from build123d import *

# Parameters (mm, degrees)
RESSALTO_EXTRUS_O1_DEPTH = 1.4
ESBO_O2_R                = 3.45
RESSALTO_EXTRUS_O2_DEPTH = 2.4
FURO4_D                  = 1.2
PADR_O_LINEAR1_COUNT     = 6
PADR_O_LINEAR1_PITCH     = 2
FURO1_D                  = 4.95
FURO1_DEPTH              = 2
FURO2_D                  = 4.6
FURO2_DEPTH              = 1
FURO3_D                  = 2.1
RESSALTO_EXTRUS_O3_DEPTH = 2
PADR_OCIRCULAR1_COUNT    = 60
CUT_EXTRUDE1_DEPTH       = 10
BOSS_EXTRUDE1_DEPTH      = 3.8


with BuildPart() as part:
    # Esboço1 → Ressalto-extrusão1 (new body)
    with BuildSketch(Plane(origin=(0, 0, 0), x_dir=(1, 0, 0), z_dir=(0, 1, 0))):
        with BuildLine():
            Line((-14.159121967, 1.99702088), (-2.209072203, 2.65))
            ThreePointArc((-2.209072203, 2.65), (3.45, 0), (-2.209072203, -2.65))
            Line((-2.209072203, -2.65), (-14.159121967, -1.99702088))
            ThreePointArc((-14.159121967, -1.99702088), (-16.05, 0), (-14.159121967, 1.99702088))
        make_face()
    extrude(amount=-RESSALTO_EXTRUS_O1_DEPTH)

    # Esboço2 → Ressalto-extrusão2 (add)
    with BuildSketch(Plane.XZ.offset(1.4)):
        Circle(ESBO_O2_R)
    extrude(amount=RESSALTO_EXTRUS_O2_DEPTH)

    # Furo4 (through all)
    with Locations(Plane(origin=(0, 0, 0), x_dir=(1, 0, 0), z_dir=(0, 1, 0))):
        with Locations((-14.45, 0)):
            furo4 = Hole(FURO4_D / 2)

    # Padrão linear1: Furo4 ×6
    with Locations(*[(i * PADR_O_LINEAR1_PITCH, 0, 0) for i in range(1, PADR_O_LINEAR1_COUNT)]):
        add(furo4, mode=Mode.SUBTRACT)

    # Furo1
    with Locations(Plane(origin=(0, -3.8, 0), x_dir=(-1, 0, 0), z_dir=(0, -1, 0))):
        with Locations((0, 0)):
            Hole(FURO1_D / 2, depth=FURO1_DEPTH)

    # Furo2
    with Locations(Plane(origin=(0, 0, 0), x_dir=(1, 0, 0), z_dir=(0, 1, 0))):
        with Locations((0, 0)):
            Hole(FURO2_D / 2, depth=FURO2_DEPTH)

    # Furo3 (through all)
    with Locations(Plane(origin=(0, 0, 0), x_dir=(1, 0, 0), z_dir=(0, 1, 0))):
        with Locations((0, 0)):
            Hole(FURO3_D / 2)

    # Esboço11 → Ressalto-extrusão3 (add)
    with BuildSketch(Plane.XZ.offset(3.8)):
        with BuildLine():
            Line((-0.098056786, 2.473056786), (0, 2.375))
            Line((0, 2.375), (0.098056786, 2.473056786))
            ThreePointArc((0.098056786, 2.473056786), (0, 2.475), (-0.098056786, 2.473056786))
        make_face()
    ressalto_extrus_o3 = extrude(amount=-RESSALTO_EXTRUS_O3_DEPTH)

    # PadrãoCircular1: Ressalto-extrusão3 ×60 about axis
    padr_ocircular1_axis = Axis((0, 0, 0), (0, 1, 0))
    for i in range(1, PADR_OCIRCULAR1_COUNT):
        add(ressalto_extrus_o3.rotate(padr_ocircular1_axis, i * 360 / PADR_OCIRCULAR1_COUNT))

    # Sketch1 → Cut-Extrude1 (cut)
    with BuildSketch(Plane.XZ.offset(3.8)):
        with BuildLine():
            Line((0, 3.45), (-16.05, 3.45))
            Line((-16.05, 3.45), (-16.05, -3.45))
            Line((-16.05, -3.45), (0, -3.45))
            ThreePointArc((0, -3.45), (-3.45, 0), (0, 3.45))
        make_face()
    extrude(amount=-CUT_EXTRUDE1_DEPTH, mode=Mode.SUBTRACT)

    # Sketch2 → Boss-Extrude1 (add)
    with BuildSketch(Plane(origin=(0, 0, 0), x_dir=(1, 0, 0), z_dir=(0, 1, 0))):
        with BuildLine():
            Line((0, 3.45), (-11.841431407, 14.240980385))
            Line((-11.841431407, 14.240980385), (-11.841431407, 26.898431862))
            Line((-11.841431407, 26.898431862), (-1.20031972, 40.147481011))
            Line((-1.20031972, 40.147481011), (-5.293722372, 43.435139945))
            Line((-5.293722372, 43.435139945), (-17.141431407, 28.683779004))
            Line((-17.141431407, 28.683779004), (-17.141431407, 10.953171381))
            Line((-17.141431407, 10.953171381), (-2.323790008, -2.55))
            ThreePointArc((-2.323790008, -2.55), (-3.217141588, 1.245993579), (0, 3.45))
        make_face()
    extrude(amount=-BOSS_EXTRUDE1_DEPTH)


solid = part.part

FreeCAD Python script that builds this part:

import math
import FreeCAD as App
import Part
import Sketcher

doc = App.newDocument("Part")
params = doc.addObject("Spreadsheet::Sheet", "Params")
for row, (alias, value) in enumerate([
    ("sketch1_radius", "2 mm"),
    ("sketch1_radius2", "3.45 mm"),
    ("pad1_length", "1.4 mm"),
    ("sketch2_diameter", "6.9 mm"),
    ("pad2_length", "2.4 mm"),
    ("sketch3_diameter", "1.2 mm"),
    ("hole_diameter", "1.2 mm"),
    ("linearpattern_pitch", "2 mm"),
    ("sketch4_diameter", "4.95 mm"),
    ("hole2_diameter", "4.95 mm"),
    ("hole2_depth", "2 mm"),
    ("sketch5_diameter", "4.6 mm"),
    ("hole3_diameter", "4.6 mm"),
    ("hole3_depth", "1 mm"),
    ("sketch6_diameter", "2.1 mm"),
    ("hole4_diameter", "2.1 mm"),
    ("pad3_length", "2 mm"),
    ("sketch8_radius", "3.45 mm"),
    ("sketch8_width", "16.05 mm"),
    ("pocket1_length", "10 mm"),
    ("sketch9_radius", "3.45 mm"),
    ("pad4_length", "3.8 mm"),
], start=1):
    params.set(f"A{row}", alias)
    params.set(f"B{row}", "=" + value)
    params.setAlias(f"B{row}", alias)

body = doc.addObject("PartDesign::Body", "Body")

sketch1 = body.newObject("Sketcher::SketchObject", "Sketch")
sketch1.AttachmentSupport = (doc.getObject("XZ_Plane"), [""])
sketch1.MapMode = "FlatFace"
sketch1.addGeometry([
    Part.LineSegment(App.Vector(-2.2, -2.6, 0), App.Vector(-14.2, -2, 0)),
    Part.ArcOfCircle(Part.Circle(App.Vector(-14.1, 0, 0), App.Vector(0, 0, 1), 2), math.radians(93), math.radians(267)),
    Part.LineSegment(App.Vector(-14.2, 2, 0), App.Vector(-2.2, 2.6, 0)),
    Part.ArcOfCircle(Part.Circle(App.Vector(0, 0, 0), App.Vector(0, 0, 1), 3.5), math.radians(-130), math.radians(130)),
], False)
sketch1.addConstraint([
    Sketcher.Constraint("Tangent", 0, 2, 1, 2),
    Sketcher.Constraint("Tangent", 1, 1, 2, 1),
    Sketcher.Constraint("Coincident", 2, 2, 3, 2),
    Sketcher.Constraint("Coincident", 3, 1, 0, 1),
    Sketcher.Constraint("Coincident", 3, 3, -1, 1),
    Sketcher.Constraint("Symmetric", 0, 2, 1, 1, -1),
    Sketcher.Constraint("Radius", 1, 2.0),
    Sketcher.Constraint("Radius", 3, 3.45),
    Sketcher.Constraint("DistanceY", 3, 1, 2, 2, 5.3),
    Sketcher.Constraint("DistanceX", 1, 3, -1, 1, 14.05),
])
sketch1.setExpression("Constraints[6]", "Params.sketch1_radius")
sketch1.setExpression("Constraints[7]", "Params.sketch1_radius2")
pad1 = body.newObject("PartDesign::Pad", "Pad")
pad1.Profile = sketch1
pad1.setExpression("Length", "Params.pad1_length")

sketch2 = body.newObject("Sketcher::SketchObject", "Sketch001")
sketch2.AttachmentSupport = (doc.getObject("XZ_Plane"), [""])
sketch2.MapMode = "FlatFace"
sketch2.AttachmentOffset = App.Placement(App.Vector(0, 0, 1.4), App.Rotation())
sketch2.addGeometry(Part.Circle(App.Vector(0, 0, 0), App.Vector(0, 0, 1), 3.5), False)
sketch2.addConstraint([
    Sketcher.Constraint("Coincident", 0, 3, -1, 1),
    Sketcher.Constraint("Diameter", 0, 6.9),
])
sketch2.setExpression("Constraints[1]", "Params.sketch2_diameter")
pad2 = body.newObject("PartDesign::Pad", "Pad001")
pad2.Profile = sketch2
pad2.setExpression("Length", "Params.pad2_length")

sketch3 = body.newObject("Sketcher::SketchObject", "Sketch002")
sketch3.AttachmentSupport = (doc.getObject("XZ_Plane"), [""])
sketch3.MapMode = "FlatFace"
sketch3.addGeometry(Part.Circle(App.Vector(-14.4, 0, 0), App.Vector(0, 0, 1), 0.6), False)
sketch3.addConstraint([
    Sketcher.Constraint("PointOnObject", 0, 3, -1),
    Sketcher.Constraint("Diameter", 0, 1.2),
    Sketcher.Constraint("DistanceX", 0, 3, -1, 1, 14.45),
])
sketch3.setExpression("Constraints[1]", "Params.sketch3_diameter")
doc.recompute()
hole = body.newObject("PartDesign::Hole", "Hole")
hole.Profile = sketch3
hole.ThreadType = "None"
hole.setExpression("Diameter", "Params.hole_diameter")
hole.DepthType = "ThroughAll"
hole.Reversed = True
doc.recompute()

linearpattern = body.newObject("PartDesign::LinearPattern", "LinearPattern")
linearpattern.Originals = [hole]
linearpattern.Direction = (doc.getObject("X_Axis"), [""])
linearpattern.Mode = "offset"
linearpattern.setExpression("Offset", "Params.linearpattern_pitch")
linearpattern.Occurrences = 6
body.Tip = linearpattern

sketch4 = body.newObject("Sketcher::SketchObject", "Sketch003")
sketch4.AttachmentSupport = (doc.getObject("XZ_Plane"), [""])
sketch4.MapMode = "FlatFace"
sketch4.AttachmentOffset = App.Placement(App.Vector(0, 0, 3.8), App.Rotation())
sketch4.addGeometry(Part.Circle(App.Vector(0, 0, 0), App.Vector(0, 0, 1), 2.5), False)
sketch4.addConstraint([
    Sketcher.Constraint("Coincident", 0, 3, -1, 1),
    Sketcher.Constraint("Diameter", 0, 4.95),
])
sketch4.setExpression("Constraints[1]", "Params.sketch4_diameter")
doc.recompute()
hole2 = body.newObject("PartDesign::Hole", "Hole001")
hole2.Profile = sketch4
hole2.ThreadType = "None"
hole2.setExpression("Diameter", "Params.hole2_diameter")
hole2.DepthType = "Dimension"
hole2.setExpression("Depth", "Params.hole2_depth")
hole2.DrillPoint = "Flat"

sketch5 = body.newObject("Sketcher::SketchObject", "Sketch004")
sketch5.AttachmentSupport = (doc.getObject("XZ_Plane"), [""])
sketch5.MapMode = "FlatFace"
sketch5.addGeometry(Part.Circle(App.Vector(0, 0, 0), App.Vector(0, 0, 1), 2.3), False)
sketch5.addConstraint([
    Sketcher.Constraint("Coincident", 0, 3, -1, 1),
    Sketcher.Constraint("Diameter", 0, 4.6),
])
sketch5.setExpression("Constraints[1]", "Params.sketch5_diameter")
doc.recompute()
hole3 = body.newObject("PartDesign::Hole", "Hole002")
hole3.Profile = sketch5
hole3.ThreadType = "None"
hole3.setExpression("Diameter", "Params.hole3_diameter")
hole3.DepthType = "Dimension"
hole3.setExpression("Depth", "Params.hole3_depth")
hole3.DrillPoint = "Flat"
hole3.Reversed = True

sketch6 = body.newObject("Sketcher::SketchObject", "Sketch005")
sketch6.AttachmentSupport = (doc.getObject("XZ_Plane"), [""])
sketch6.MapMode = "FlatFace"
sketch6.addGeometry(Part.Circle(App.Vector(0, 0, 0), App.Vector(0, 0, 1), 1.1), False)
sketch6.addConstraint([
    Sketcher.Constraint("Coincident", 0, 3, -1, 1),
    Sketcher.Constraint("Diameter", 0, 2.1),
])
sketch6.setExpression("Constraints[1]", "Params.sketch6_diameter")
doc.recompute()
hole4 = body.newObject("PartDesign::Hole", "Hole003")
hole4.Profile = sketch6
hole4.ThreadType = "None"
hole4.setExpression("Diameter", "Params.hole4_diameter")
hole4.DepthType = "ThroughAll"
hole4.Reversed = True

sketch7 = body.newObject("Sketcher::SketchObject", "Sketch006")
sketch7.AttachmentSupport = (doc.getObject("XZ_Plane"), [""])
sketch7.MapMode = "FlatFace"
sketch7.AttachmentOffset = App.Placement(App.Vector(0, 0, 3.8), App.Rotation())
sketch7.addGeometry([
    Part.LineSegment(App.Vector(-0.1, 2.47, 0), App.Vector(0, 2.38, 0)),
    Part.LineSegment(App.Vector(0, 2.38, 0), App.Vector(0.1, 2.47, 0)),
    Part.ArcOfCircle(Part.Circle(App.Vector(0, 0, 0), App.Vector(0, 0, 1), 2.48), math.radians(87.73), math.radians(92.27)),
], False)
sketch7.addConstraint([
    Sketcher.Constraint("Coincident", 0, 2, 1, 1),
    Sketcher.Constraint("Coincident", 1, 2, 2, 1),
    Sketcher.Constraint("Coincident", 2, 2, 0, 1),
    Sketcher.Constraint("Coincident", 2, 3, -1, 1),
    Sketcher.Constraint("PointOnObject", 0, 2, -2),
    Sketcher.Constraint("Perpendicular", 0, 1),
    Sketcher.Constraint("Horizontal", 1, 2, 2, 2),
    Sketcher.Constraint("Radius", 2, 2.475),
    Sketcher.Constraint("DistanceY", -1, 1, 0, 2, 2.375),
])
pad3 = body.newObject("PartDesign::Pad", "Pad002")
pad3.Profile = sketch7
pad3.setExpression("Length", "Params.pad3_length")
pad3.Reversed = True
doc.recompute()

polarpattern = body.newObject("PartDesign::PolarPattern", "PolarPattern")
polarpattern.Originals = [pad3]
polarpattern.Axis = (doc.getObject("Y_Axis"), [""])
polarpattern.Angle = 360
polarpattern.Occurrences = 60
body.Tip = polarpattern

sketch8 = body.newObject("Sketcher::SketchObject", "Sketch007")
sketch8.AttachmentSupport = (doc.getObject("XZ_Plane"), [""])
sketch8.MapMode = "FlatFace"
sketch8.AttachmentOffset = App.Placement(App.Vector(0, 0, 3.8), App.Rotation())
sketch8.addGeometry([
    Part.LineSegment(App.Vector(0, 3.5, 0), App.Vector(-16.1, 3.5, 0)),
    Part.LineSegment(App.Vector(-16.1, 3.5, 0), App.Vector(-16.1, -3.5, 0)),
    Part.LineSegment(App.Vector(-16.1, -3.5, 0), App.Vector(0, -3.5, 0)),
    Part.ArcOfCircle(Part.Circle(App.Vector(0, 0, 0), App.Vector(0, 0, 1), 3.5), math.radians(90), math.radians(270)),
], False)
sketch8.addConstraint([
    Sketcher.Constraint("Coincident", 0, 2, 1, 1),
    Sketcher.Constraint("Coincident", 1, 2, 2, 1),
    Sketcher.Constraint("Tangent", 2, 2, 3, 2),
    Sketcher.Constraint("Tangent", 3, 1, 0, 1),
    Sketcher.Constraint("Horizontal", 0),
    Sketcher.Constraint("Vertical", 1),
    Sketcher.Constraint("Horizontal", 2),
    Sketcher.Constraint("Coincident", 3, 3, -1, 1),
    Sketcher.Constraint("Radius", 3, 3.45),
    Sketcher.Constraint("DistanceX", 0, 2, 0, 1, 16.05),
])
sketch8.setExpression("Constraints[8]", "Params.sketch8_radius")
sketch8.setExpression("Constraints[9]", "Params.sketch8_width")
pocket1 = body.newObject("PartDesign::Pocket", "Pocket")
pocket1.Profile = sketch8
pocket1.setExpression("Length", "Params.pocket1_length")

sketch9 = body.newObject("Sketcher::SketchObject", "Sketch008")
sketch9.AttachmentSupport = (doc.getObject("XZ_Plane"), [""])
sketch9.MapMode = "FlatFace"
sketch9.addGeometry([
    Part.LineSegment(App.Vector(0, -3.5, 0), App.Vector(-11.8, -14.2, 0)),
    Part.LineSegment(App.Vector(-11.8, -14.2, 0), App.Vector(-11.8, -26.9, 0)),
    Part.LineSegment(App.Vector(-11.8, -26.9, 0), App.Vector(-1.2, -40.1, 0)),
    Part.LineSegment(App.Vector(-1.2, -40.1, 0), App.Vector(-5.3, -43.4, 0)),
    Part.LineSegment(App.Vector(-5.3, -43.4, 0), App.Vector(-17.1, -28.7, 0)),
    Part.LineSegment(App.Vector(-17.1, -28.7, 0), App.Vector(-17.1, -11, 0)),
    Part.LineSegment(App.Vector(-17.1, -11, 0), App.Vector(-2.3, 2.5, 0)),
    Part.ArcOfCircle(Part.Circle(App.Vector(0, 0, 0), App.Vector(0, 0, 1), 3.5), math.radians(132), math.radians(270)),
], False)
sketch9.addConstraint([
    Sketcher.Constraint("Coincident", 0, 2, 1, 1),
    Sketcher.Constraint("Coincident", 1, 2, 2, 1),
    Sketcher.Constraint("Coincident", 2, 2, 3, 1),
    Sketcher.Constraint("Coincident", 3, 2, 4, 1),
    Sketcher.Constraint("Coincident", 4, 2, 5, 1),
    Sketcher.Constraint("Coincident", 5, 2, 6, 1),
    Sketcher.Constraint("Tangent", 6, 2, 7, 1),
    Sketcher.Constraint("Coincident", 7, 2, 0, 1),
    Sketcher.Constraint("Vertical", 1),
    Sketcher.Constraint("Vertical", 5),
    Sketcher.Constraint("Coincident", 7, 3, -1, 1),
    Sketcher.Constraint("PointOnObject", 7, 2, -2),
    Sketcher.Constraint("Perpendicular", 2, 3),
    Sketcher.Constraint("Perpendicular", 3, 4),
    Sketcher.Constraint("Parallel", 0, 6),
    Sketcher.Constraint("Radius", 7, 3.45),
    Sketcher.Constraint("DistanceY", 7, 2, 6, 2, 6.0),
    Sketcher.Constraint("DistanceX", 4, 2, 1, 2, 5.3),
    Sketcher.Constraint("DistanceY", 1, 2, 1, 1, 12.657451),
    Sketcher.Constraint("DistanceY", 2, 2, 0, 2, 25.906501),
    Sketcher.Constraint("DistanceY", 4, 2, 0, 2, 14.442799),
    Sketcher.Constraint("Distance", 0, 16.02076),
    Sketcher.Constraint("Distance", 2, 16.99325),
])
sketch9.setExpression("Constraints[15]", "Params.sketch9_radius")
pad4 = body.newObject("PartDesign::Pad", "Pad003")
pad4.Profile = sketch9
pad4.setExpression("Length", "Params.pad4_length")

doc.recompute()
